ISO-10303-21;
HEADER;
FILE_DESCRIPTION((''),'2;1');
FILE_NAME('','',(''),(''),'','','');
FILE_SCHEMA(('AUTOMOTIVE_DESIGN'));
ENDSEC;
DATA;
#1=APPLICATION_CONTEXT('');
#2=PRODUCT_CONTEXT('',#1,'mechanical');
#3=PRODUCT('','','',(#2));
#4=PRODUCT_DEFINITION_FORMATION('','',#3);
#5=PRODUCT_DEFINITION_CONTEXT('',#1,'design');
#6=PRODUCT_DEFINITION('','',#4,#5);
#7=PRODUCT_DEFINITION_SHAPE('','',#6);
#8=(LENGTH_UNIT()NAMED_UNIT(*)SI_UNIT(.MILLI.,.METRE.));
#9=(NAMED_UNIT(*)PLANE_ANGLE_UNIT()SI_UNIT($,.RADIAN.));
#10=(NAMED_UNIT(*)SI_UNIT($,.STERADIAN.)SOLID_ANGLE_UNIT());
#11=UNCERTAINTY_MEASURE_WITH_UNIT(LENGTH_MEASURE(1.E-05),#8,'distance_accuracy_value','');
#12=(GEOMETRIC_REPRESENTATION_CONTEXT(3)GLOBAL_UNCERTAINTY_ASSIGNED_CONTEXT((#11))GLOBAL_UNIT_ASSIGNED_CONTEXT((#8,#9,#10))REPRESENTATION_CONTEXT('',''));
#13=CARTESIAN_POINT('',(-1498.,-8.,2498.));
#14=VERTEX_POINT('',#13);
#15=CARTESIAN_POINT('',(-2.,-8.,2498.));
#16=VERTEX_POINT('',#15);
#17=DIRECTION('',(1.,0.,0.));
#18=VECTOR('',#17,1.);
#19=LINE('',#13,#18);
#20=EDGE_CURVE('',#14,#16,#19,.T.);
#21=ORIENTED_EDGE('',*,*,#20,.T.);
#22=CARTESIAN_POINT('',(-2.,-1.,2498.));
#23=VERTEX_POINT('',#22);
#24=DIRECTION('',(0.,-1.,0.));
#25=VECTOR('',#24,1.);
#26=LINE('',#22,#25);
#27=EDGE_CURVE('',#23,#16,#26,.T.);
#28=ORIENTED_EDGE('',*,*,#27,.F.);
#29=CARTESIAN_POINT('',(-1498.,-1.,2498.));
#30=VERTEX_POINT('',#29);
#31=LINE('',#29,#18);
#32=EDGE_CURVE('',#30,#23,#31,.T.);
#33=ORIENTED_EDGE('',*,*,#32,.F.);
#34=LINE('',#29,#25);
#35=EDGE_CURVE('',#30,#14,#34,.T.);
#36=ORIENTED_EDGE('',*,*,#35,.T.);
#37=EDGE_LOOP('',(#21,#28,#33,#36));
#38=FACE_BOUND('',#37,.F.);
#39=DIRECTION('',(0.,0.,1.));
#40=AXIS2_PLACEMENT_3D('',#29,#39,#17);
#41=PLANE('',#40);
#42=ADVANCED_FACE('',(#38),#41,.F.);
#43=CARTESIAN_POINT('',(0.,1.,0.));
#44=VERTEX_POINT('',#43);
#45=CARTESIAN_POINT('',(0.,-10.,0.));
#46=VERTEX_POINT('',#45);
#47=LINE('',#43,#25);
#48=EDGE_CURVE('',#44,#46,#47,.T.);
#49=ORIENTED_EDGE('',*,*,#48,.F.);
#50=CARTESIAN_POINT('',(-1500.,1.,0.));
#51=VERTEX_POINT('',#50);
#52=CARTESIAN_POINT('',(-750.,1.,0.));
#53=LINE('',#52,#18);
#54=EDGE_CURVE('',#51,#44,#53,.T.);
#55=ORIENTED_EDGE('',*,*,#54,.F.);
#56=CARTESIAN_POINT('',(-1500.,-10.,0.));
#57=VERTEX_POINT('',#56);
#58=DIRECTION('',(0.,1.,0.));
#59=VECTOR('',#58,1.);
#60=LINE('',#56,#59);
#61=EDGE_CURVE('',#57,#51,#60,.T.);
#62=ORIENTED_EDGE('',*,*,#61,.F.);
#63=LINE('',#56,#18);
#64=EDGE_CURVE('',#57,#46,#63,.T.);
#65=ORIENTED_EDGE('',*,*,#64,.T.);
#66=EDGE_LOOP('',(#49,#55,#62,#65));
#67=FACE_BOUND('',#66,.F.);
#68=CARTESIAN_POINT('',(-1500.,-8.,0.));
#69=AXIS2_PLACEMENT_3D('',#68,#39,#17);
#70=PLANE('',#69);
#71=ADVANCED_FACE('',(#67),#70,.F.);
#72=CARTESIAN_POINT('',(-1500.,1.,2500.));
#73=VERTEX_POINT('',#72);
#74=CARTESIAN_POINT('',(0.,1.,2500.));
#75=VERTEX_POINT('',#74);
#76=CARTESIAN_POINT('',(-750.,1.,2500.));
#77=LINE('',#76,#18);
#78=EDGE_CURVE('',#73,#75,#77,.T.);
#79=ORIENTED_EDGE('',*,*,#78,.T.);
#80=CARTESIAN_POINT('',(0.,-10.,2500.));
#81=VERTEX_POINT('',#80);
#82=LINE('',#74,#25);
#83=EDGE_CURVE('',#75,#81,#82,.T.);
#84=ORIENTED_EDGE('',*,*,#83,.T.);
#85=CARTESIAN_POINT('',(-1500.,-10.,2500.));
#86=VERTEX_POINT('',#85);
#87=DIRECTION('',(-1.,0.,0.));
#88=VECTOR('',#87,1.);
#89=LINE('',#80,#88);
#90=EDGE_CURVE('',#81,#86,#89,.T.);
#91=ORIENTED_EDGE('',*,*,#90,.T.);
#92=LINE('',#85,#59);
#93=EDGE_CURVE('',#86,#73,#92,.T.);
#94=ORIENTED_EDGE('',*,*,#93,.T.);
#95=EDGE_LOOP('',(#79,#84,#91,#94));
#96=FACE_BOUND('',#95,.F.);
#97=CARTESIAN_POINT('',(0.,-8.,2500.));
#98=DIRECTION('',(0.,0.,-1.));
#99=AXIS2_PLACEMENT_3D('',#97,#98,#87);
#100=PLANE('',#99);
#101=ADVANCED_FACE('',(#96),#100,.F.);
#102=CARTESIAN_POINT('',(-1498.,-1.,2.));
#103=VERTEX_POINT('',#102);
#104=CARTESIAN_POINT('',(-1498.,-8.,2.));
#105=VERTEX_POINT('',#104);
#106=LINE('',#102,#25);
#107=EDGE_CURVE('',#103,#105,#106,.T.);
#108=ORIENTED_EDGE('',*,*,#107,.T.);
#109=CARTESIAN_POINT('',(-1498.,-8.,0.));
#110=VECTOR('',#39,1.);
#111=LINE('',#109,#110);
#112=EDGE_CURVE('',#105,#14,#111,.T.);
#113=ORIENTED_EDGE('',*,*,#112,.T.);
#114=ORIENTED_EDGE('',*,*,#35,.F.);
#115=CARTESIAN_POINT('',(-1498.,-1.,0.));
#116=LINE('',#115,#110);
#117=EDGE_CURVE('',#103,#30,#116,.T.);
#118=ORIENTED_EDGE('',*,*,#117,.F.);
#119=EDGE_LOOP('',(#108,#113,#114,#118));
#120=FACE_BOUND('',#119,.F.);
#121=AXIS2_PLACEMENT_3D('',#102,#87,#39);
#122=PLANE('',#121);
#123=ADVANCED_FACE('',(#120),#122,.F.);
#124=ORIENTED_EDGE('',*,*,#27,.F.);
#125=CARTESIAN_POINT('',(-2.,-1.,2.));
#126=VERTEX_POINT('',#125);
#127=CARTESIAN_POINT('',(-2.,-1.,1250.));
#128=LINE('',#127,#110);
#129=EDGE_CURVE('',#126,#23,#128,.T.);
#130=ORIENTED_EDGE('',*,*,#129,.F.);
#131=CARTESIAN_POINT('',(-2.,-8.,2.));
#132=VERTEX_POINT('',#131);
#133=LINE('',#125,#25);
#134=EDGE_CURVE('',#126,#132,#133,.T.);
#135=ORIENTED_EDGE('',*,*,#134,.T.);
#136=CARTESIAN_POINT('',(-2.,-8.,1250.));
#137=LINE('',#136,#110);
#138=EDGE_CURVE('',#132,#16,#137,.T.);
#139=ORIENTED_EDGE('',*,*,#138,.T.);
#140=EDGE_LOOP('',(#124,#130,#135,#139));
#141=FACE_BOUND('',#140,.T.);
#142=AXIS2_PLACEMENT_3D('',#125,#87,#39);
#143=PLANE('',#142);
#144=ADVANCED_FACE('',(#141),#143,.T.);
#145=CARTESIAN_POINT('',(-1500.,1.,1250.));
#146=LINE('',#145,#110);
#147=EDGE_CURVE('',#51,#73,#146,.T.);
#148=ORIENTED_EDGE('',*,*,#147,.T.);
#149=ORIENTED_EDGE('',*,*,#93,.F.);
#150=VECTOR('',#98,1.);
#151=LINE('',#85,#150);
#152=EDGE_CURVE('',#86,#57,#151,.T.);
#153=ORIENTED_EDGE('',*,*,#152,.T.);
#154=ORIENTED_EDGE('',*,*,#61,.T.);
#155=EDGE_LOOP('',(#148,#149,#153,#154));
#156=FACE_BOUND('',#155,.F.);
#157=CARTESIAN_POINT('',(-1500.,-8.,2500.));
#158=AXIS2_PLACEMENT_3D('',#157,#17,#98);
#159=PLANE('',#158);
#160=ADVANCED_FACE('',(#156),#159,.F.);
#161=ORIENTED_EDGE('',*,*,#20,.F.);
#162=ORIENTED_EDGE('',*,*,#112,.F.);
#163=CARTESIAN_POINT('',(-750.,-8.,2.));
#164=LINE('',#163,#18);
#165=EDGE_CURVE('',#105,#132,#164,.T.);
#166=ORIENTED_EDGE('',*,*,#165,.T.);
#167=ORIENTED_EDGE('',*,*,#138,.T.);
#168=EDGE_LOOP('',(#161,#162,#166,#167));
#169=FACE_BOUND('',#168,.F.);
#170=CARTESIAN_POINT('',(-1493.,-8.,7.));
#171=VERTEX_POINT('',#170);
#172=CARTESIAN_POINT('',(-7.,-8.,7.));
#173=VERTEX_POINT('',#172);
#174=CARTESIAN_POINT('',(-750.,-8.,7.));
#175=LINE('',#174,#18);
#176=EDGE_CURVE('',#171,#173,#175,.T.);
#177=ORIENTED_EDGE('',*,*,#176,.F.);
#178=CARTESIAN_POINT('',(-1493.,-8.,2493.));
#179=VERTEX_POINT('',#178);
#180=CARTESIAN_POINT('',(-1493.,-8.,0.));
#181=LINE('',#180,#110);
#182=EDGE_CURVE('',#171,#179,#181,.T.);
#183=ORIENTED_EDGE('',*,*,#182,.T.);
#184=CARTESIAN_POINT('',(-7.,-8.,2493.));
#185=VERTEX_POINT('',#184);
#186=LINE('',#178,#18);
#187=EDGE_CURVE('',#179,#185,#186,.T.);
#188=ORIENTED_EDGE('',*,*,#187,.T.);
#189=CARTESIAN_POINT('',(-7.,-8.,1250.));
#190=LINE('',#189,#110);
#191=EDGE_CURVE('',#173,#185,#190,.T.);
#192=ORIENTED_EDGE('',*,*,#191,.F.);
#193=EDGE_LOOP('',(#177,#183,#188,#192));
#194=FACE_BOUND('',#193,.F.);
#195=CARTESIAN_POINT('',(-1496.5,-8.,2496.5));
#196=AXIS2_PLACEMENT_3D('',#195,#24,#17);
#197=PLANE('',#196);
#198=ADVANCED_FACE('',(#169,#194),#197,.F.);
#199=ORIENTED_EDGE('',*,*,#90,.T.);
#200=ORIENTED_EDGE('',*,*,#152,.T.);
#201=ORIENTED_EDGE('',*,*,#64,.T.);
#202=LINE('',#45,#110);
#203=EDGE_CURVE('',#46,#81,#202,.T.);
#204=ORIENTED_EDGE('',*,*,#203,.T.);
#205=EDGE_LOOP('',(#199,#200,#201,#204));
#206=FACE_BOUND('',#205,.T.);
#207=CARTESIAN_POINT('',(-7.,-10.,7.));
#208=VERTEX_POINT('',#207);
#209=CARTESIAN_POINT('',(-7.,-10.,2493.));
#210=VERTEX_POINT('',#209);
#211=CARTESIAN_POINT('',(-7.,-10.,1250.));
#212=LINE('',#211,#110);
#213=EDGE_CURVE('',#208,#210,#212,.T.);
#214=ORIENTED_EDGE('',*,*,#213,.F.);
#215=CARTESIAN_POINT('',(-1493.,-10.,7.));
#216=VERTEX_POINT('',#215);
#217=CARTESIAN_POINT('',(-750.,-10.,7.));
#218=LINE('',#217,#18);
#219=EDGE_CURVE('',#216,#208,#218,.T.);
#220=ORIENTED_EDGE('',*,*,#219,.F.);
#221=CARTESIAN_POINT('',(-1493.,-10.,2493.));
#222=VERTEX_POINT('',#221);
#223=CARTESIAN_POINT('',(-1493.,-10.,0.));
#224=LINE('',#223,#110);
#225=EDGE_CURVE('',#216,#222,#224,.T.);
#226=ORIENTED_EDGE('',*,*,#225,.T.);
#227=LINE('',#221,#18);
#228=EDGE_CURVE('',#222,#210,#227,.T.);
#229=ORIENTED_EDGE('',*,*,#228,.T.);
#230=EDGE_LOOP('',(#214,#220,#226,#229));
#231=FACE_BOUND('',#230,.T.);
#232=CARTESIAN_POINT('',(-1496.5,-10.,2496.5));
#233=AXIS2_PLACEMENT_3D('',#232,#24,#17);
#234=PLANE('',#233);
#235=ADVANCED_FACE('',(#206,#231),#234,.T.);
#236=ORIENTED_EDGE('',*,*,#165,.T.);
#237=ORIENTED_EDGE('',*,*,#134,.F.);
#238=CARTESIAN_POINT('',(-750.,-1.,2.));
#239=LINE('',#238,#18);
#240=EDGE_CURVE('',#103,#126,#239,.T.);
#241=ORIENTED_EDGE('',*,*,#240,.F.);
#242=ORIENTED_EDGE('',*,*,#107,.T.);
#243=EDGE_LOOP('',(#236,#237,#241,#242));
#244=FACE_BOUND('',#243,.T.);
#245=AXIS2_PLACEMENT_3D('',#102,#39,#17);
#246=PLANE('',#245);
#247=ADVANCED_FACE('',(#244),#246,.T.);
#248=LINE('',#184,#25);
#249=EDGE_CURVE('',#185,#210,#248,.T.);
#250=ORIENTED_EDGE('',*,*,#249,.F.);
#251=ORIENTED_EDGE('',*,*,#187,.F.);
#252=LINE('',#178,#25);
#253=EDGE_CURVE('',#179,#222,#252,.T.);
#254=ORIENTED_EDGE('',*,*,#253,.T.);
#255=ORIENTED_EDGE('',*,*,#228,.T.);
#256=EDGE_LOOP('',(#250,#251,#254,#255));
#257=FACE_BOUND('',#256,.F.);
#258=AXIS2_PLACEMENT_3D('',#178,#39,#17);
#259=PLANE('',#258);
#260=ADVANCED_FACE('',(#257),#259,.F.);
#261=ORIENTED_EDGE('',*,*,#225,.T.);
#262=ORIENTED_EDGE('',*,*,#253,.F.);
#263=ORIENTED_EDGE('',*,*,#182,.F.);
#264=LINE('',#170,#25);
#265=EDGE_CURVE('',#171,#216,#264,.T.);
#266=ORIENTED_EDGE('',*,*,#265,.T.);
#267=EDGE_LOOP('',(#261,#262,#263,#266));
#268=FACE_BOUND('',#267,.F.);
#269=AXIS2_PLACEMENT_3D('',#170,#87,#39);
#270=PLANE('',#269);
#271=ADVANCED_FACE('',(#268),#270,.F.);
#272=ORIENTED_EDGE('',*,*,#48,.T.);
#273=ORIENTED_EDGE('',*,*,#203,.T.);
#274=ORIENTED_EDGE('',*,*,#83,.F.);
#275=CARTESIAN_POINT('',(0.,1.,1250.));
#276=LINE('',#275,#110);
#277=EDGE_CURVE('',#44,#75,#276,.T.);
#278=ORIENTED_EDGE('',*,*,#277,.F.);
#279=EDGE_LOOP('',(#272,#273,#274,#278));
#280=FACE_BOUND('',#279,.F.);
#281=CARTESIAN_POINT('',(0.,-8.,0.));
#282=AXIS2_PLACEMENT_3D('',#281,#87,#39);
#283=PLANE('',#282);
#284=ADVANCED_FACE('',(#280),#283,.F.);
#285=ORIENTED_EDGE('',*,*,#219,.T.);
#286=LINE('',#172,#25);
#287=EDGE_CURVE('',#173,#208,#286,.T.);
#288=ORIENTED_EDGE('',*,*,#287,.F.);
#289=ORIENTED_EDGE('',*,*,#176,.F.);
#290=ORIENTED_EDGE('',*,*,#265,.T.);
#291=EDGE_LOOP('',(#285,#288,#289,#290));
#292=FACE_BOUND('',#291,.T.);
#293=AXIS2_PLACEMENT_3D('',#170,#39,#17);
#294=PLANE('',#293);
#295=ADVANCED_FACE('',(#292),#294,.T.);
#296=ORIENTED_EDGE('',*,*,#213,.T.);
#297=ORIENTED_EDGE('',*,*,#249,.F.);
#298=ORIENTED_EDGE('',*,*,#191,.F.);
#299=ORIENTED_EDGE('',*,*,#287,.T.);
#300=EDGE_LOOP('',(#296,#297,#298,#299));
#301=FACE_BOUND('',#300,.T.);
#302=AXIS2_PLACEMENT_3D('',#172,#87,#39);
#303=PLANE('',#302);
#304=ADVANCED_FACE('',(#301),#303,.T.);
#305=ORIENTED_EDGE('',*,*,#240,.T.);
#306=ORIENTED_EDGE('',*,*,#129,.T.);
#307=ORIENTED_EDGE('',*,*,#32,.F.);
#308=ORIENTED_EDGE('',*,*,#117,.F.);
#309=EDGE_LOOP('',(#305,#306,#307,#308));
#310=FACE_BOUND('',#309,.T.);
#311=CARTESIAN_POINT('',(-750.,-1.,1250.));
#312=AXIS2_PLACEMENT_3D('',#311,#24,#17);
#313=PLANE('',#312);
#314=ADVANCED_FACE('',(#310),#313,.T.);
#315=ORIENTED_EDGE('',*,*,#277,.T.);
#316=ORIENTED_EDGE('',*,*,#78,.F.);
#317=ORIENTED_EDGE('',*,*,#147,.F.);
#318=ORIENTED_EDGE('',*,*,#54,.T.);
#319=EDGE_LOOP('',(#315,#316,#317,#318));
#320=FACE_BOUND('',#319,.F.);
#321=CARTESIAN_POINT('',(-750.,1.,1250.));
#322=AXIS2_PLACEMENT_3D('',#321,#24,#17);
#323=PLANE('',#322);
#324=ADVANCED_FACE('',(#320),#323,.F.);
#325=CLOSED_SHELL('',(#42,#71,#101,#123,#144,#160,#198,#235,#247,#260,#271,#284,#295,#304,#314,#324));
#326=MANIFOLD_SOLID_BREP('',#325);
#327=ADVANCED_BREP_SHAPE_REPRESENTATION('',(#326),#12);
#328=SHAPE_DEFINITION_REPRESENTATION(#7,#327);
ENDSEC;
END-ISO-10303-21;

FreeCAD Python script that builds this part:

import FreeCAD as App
import Part
import Sketcher
from FreeCAD import Vector
Q = App.Units.Quantity


def add_polygon(sketch, points):
    """Adds a closed chain of lines whose ends are joined by coincident constraints."""
    first, n = sketch.GeometryCount, len(points)
    for a, b in zip(points, points[1:] + points[:1]):
        sketch.addGeometry(Part.LineSegment(App.Vector(*a, 0), App.Vector(*b, 0)), False)
    for i in range(n):
        sketch.addConstraint(Sketcher.Constraint("Coincident", first + i, 2, first + (i + 1) % n, 1))

doc = App.newDocument("Part")
params = doc.addObject("Spreadsheet::Sheet", "Params")
for row, (alias, value) in enumerate([
    ("sketch1_width", "1500 mm"),
    ("sketch1_height", "2500 mm"),
    ("pad1_length", "2 mm"),
    ("sketch2_width", "1500 mm"),
    ("sketch2_width2", "1496 mm"),
    ("sketch2_height", "2500 mm"),
    ("sketch2_height2", "2496 mm"),
    ("pad2_length", "7 mm"),
    ("sketch3_width", "1500 mm"),
    ("sketch3_width2", "1486 mm"),
    ("sketch3_height", "2500 mm"),
    ("sketch3_height2", "2486 mm"),
    ("pad3_length", "2 mm"),
], start=1):
    params.set(f"A{row}", alias)
    params.set(f"B{row}", "=" + value)
    params.setAlias(f"B{row}", alias)

body = doc.addObject("PartDesign::Body", "Body")

# Sketch on XZ plane
sketch1 = body.newObject("Sketcher::SketchObject", "Sketch")
sketch1.AttachmentSupport = (doc.getObject("XZ_Plane"), [""])
sketch1.MapMode = "FlatFace"
add_polygon(sketch1, [(-1500, 2500), (-1500, 0), (0, 0), (0, 2500)])  # lines 0-3
sketch1.addConstraint(Sketcher.Constraint("Vertical", 0))
sketch1.addConstraint(Sketcher.Constraint("Horizontal", 1))
sketch1.addConstraint(Sketcher.Constraint("Vertical", 2))
sketch1.addConstraint(Sketcher.Constraint("Horizontal", 3))
sketch1.addConstraint(Sketcher.Constraint("Coincident", 1, 2, -1, 1))
sketch1.addConstraint(Sketcher.Constraint("DistanceX", 1, 1, 1, 2, Q("1500 mm")))
sketch1.addConstraint(Sketcher.Constraint("DistanceY", 0, 2, 0, 1, Q("2500 mm")))
sketch1.setExpression("Constraints[9]", "Params.sketch1_width")
sketch1.setExpression("Constraints[10]", "Params.sketch1_height")
pad1 = body.newObject("PartDesign::Pad", "Pad")
pad1.Profile = sketch1
pad1.setExpression("Length", "Params.pad1_length")
pad1.Midplane = True

# Sketch on XZ plane
sketch2 = body.newObject("Sketcher::SketchObject", "Sketch001")
sketch2.AttachmentSupport = (doc.getObject("XZ_Plane"), [""])
sketch2.MapMode = "FlatFace"
sketch2.AttachmentOffset = App.Placement(Vector(0, 0, 1), App.Rotation())
add_polygon(sketch2, [(-1500, 0), (0, 0), (0, 2500), (-1500, 2500)])  # lines 0-3
add_polygon(sketch2, [(-2, 2), (-1498, 2), (-1498, 2498), (-2, 2498)])  # lines 4-7
sketch2.addConstraint(Sketcher.Constraint("Horizontal", 0))
sketch2.addConstraint(Sketcher.Constraint("Vertical", 1))
sketch2.addConstraint(Sketcher.Constraint("Horizontal", 2))
sketch2.addConstraint(Sketcher.Constraint("Vertical", 3))
sketch2.addConstraint(Sketcher.Constraint("Horizontal", 4))
sketch2.addConstraint(Sketcher.Constraint("Vertical", 5))
sketch2.addConstraint(Sketcher.Constraint("Horizontal", 6))
sketch2.addConstraint(Sketcher.Constraint("Vertical", 7))
sketch2.addConstraint(Sketcher.Constraint("Coincident", 0, 2, -1, 1))
sketch2.addConstraint(Sketcher.Constraint("DistanceX", 0, 1, 0, 2, Q("1500 mm")))
sketch2.addConstraint(Sketcher.Constraint("DistanceX", 4, 2, 4, 1, Q("1496 mm")))
sketch2.addConstraint(Sketcher.Constraint("DistanceY", 1, 1, 1, 2, Q("2500 mm")))
sketch2.addConstraint(Sketcher.Constraint("DistanceY", 5, 1, 5, 2, Q("2496 mm")))
sketch2.addConstraint(Sketcher.Constraint("DistanceX", 4, 2, -1, 1, Q("1498 mm")))
sketch2.addConstraint(Sketcher.Constraint("DistanceY", -1, 1, 4, 2, Q("2 mm")))
sketch2.setExpression("Constraints[17]", "Params.sketch2_width")
sketch2.setExpression("Constraints[18]", "Params.sketch2_width2")
sketch2.setExpression("Constraints[19]", "Params.sketch2_height")
sketch2.setExpression("Constraints[20]", "Params.sketch2_height2")
pad2 = body.newObject("PartDesign::Pad", "Pad001")
pad2.Profile = sketch2
pad2.setExpression("Length", "Params.pad2_length")

# Sketch on XZ plane
sketch3 = body.newObject("Sketcher::SketchObject", "Sketch002")
sketch3.AttachmentSupport = (doc.getObject("XZ_Plane"), [""])
sketch3.MapMode = "FlatFace"
sketch3.AttachmentOffset = App.Placement(Vector(0, 0, 8), App.Rotation())
add_polygon(sketch3, [(-1500, 0), (0, 0), (0, 2500), (-1500, 2500)])  # lines 0-3
add_polygon(sketch3, [(-7, 7), (-1493, 7), (-1493, 2493), (-7, 2493)])  # lines 4-7
sketch3.addConstraint(Sketcher.Constraint("Horizontal", 0))
sketch3.addConstraint(Sketcher.Constraint("Vertical", 1))
sketch3.addConstraint(Sketcher.Constraint("Horizontal", 2))
sketch3.addConstraint(Sketcher.Constraint("Vertical", 3))
sketch3.addConstraint(Sketcher.Constraint("Horizontal", 4))
sketch3.addConstraint(Sketcher.Constraint("Vertical", 5))
sketch3.addConstraint(Sketcher.Constraint("Horizontal", 6))
sketch3.addConstraint(Sketcher.Constraint("Vertical", 7))
sketch3.addConstraint(Sketcher.Constraint("Coincident", 0, 2, -1, 1))
sketch3.addConstraint(Sketcher.Constraint("DistanceX", 0, 1, 0, 2, Q("1500 mm")))
sketch3.addConstraint(Sketcher.Constraint("DistanceX", 4, 2, 4, 1, Q("1486 mm")))
sketch3.addConstraint(Sketcher.Constraint("DistanceY", 1, 1, 1, 2, Q("2500 mm")))
sketch3.addConstraint(Sketcher.Constraint("DistanceY", 5, 1, 5, 2, Q("2486 mm")))
sketch3.addConstraint(Sketcher.Constraint("DistanceX", 4, 2, -1, 1, Q("1493 mm")))
sketch3.addConstraint(Sketcher.Constraint("DistanceY", -1, 1, 4, 2, Q("7 mm")))
sketch3.setExpression("Constraints[17]", "Params.sketch3_width")
sketch3.setExpression("Constraints[18]", "Params.sketch3_width2")
sketch3.setExpression("Constraints[19]", "Params.sketch3_height")
sketch3.setExpression("Constraints[20]", "Params.sketch3_height2")
pad3 = body.newObject("PartDesign::Pad", "Pad002")
pad3.Profile = sketch3
pad3.setExpression("Length", "Params.pad3_length")

doc.recompute()
